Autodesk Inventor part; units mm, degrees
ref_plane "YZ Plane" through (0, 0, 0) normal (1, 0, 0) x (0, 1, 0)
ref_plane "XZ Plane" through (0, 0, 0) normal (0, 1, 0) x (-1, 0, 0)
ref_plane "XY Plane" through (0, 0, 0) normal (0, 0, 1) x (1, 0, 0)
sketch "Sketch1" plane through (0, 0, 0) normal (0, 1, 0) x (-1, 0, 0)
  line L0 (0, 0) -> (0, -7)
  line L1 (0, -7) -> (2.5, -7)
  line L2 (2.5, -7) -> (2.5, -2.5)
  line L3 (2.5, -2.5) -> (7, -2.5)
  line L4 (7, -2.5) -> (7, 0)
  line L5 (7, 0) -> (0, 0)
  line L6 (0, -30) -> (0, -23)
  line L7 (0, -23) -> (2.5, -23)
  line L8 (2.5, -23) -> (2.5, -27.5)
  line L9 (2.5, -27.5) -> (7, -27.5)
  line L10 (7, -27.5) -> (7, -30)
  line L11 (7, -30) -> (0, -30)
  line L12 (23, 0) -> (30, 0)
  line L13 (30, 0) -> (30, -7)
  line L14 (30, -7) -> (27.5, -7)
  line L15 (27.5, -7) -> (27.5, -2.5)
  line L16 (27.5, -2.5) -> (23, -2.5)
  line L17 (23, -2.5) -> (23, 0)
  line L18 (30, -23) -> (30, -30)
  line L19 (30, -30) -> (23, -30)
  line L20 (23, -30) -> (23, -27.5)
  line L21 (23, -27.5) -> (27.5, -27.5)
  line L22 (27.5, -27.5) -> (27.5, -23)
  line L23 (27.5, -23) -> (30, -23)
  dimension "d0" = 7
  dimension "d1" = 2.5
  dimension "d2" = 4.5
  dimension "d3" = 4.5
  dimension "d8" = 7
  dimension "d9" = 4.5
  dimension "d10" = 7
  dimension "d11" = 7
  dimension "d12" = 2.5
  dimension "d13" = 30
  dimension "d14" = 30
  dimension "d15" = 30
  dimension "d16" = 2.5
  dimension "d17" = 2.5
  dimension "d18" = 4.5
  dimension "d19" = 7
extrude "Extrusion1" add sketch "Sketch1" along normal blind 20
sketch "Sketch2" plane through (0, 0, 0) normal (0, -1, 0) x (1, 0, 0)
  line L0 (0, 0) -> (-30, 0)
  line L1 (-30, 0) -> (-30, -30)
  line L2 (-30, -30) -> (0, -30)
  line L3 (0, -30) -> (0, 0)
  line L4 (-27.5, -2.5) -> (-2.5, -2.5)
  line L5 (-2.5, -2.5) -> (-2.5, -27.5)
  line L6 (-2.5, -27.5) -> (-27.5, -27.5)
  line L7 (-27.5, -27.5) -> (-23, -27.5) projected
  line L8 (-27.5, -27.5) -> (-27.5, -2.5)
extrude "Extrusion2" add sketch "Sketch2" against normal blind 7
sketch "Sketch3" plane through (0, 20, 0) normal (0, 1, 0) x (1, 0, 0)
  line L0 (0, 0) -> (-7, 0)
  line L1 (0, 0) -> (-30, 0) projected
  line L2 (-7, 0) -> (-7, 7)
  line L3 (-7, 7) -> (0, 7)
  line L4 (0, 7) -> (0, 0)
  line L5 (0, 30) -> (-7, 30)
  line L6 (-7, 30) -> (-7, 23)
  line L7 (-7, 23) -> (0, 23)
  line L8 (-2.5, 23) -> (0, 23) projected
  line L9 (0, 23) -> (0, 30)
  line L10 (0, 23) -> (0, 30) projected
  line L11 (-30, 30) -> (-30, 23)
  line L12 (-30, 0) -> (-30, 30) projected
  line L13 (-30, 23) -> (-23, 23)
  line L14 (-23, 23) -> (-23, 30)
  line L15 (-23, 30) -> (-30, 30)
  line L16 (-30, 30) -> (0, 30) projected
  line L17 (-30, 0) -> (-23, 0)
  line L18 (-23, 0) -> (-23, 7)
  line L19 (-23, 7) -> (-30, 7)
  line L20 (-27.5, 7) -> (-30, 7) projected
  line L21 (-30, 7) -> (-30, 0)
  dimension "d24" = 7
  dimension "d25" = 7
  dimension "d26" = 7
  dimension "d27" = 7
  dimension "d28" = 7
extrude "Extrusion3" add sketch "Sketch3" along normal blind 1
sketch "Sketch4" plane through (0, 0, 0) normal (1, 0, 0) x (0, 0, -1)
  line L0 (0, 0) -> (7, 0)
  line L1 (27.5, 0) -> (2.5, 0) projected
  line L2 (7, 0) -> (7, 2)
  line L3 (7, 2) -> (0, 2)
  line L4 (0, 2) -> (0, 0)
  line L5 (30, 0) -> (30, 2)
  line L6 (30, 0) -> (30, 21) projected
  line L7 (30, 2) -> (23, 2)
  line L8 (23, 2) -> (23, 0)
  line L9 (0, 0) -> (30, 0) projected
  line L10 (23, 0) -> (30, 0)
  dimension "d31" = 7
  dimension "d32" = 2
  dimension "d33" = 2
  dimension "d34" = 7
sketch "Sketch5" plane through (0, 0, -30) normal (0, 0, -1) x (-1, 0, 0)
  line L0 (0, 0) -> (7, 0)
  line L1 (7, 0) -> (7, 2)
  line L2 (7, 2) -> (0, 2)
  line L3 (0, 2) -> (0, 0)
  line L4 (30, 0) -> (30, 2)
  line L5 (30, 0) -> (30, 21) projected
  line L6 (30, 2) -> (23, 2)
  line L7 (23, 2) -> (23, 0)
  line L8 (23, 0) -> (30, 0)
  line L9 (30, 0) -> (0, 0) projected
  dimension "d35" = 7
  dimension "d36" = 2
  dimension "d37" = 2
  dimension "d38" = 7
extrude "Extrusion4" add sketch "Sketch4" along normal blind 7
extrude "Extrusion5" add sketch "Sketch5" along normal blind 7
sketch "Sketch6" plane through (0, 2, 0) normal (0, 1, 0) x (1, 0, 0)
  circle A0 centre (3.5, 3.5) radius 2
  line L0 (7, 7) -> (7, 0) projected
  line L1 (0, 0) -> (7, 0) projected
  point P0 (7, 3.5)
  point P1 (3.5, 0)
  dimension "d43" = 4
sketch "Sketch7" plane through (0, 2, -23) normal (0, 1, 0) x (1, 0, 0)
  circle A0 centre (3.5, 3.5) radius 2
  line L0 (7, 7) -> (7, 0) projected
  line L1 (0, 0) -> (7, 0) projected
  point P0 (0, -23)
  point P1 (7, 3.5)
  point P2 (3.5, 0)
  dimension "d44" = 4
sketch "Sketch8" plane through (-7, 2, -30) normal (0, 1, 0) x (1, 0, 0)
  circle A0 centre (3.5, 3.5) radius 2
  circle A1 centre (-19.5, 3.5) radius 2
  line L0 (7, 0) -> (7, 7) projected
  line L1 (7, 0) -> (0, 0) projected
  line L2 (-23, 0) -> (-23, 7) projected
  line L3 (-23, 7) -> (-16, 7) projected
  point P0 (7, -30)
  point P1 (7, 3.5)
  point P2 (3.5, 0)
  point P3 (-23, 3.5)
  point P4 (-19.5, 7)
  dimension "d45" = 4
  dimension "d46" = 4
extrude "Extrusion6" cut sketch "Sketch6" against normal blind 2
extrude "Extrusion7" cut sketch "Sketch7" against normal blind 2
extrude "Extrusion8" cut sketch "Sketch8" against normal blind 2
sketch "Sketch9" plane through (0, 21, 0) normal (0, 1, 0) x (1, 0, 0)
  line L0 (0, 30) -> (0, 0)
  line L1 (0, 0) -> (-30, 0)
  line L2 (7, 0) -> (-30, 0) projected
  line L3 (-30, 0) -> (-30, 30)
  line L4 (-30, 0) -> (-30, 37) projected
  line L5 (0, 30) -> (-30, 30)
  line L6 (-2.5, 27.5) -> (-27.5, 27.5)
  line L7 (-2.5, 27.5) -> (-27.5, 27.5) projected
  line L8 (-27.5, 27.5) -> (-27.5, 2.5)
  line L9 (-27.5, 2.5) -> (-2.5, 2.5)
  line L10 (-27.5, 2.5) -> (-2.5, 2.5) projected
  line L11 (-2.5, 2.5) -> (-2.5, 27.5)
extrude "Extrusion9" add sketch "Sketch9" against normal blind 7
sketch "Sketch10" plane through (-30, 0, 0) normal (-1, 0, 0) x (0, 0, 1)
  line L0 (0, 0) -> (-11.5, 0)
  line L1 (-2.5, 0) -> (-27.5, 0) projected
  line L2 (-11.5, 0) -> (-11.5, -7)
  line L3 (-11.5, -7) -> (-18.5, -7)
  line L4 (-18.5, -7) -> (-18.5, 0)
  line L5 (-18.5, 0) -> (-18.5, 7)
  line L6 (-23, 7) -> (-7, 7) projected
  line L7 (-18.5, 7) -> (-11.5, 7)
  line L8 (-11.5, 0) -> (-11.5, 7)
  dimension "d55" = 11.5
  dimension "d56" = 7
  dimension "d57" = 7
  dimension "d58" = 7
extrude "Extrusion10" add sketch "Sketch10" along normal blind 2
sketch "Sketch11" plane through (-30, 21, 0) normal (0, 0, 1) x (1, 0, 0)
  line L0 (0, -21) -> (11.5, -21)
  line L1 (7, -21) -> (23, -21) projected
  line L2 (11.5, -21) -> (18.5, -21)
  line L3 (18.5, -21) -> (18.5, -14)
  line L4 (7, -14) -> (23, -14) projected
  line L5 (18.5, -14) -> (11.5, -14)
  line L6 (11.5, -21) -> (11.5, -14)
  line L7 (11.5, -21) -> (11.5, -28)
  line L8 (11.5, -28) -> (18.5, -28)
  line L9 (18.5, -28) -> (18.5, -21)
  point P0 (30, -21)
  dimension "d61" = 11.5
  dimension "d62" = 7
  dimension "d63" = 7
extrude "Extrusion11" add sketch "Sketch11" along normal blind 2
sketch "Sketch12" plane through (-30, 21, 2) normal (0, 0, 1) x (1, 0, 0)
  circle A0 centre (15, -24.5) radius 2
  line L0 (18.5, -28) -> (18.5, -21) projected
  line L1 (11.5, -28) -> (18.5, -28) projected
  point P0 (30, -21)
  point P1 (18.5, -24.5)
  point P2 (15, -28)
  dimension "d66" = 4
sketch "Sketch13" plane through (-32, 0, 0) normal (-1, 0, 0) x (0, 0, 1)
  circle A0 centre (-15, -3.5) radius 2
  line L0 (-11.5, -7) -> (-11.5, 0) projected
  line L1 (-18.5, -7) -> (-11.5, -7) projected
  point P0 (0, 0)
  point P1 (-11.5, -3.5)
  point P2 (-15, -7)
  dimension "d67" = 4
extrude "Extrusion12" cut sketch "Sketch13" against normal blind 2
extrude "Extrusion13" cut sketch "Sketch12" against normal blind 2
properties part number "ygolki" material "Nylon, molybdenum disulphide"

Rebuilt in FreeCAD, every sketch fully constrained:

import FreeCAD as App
import Part
import Sketcher
from FreeCAD import Vector


def add_polygon(sketch, points):
    """Adds a closed chain of lines whose ends are joined by coincident constraints."""
    first, n = sketch.GeometryCount, len(points)
    for a, b in zip(points, points[1:] + points[:1]):
        sketch.addGeometry(Part.LineSegment(App.Vector(*a, 0), App.Vector(*b, 0)), False)
    for i in range(n):
        sketch.addConstraint(Sketcher.Constraint("Coincident", first + i, 2, first + (i + 1) % n, 1))

doc = App.newDocument("Part")
params = doc.addObject("Spreadsheet::Sheet", "Params")
for row, (alias, value) in enumerate([
    ("sketch1_width", "7 mm"),
    ("sketch1_width2", "2.5 mm"),
    ("pad1_length", "20 mm"),
    ("sketch2_width", "30 mm"),
    ("sketch2_width2", "25 mm"),
    ("pad2_length", "7 mm"),
    ("sketch3_width", "7 mm"),
    ("pad3_length", "1 mm"),
    ("sketch4_width", "2 mm"),
    ("sketch4_height", "7 mm"),
    ("pad4_length", "7 mm"),
    ("sketch5_width", "7 mm"),
    ("sketch5_height", "2 mm"),
    ("pad5_length", "7 mm"),
    ("sketch6_diameter", "4 mm"),
    ("pocket1_length", "2 mm"),
    ("sketch7_diameter", "4 mm"),
    ("pocket2_length", "2 mm"),
    ("sketch8_diameter", "4 mm"),
    ("pocket3_length", "2 mm"),
    ("sketch9_width", "30 mm"),
    ("sketch9_width2", "25 mm"),
    ("pad6_length", "7 mm"),
    ("sketch10_height", "7 mm"),
    ("pad7_length", "2 mm"),
    ("sketch11_width", "7 mm"),
    ("pad8_length", "2 mm"),
    ("sketch12_diameter", "4 mm"),
    ("pocket4_length", "2 mm"),
    ("sketch13_diameter", "4 mm"),
    ("pocket5_length", "2 mm"),
], start=1):
    params.set(f"A{row}", alias)
    params.set(f"B{row}", "=" + value)
    params.setAlias(f"B{row}", alias)

body = doc.addObject("PartDesign::Body", "Body")
body.AllowCompound = True

# Sketch on XZ plane
sketch1 = body.newObject("Sketcher::SketchObject", "Sketch")
sketch1.AttachmentSupport = (doc.getObject("XZ_Plane"), [""])
sketch1.MapMode = "FlatFace"
add_polygon(sketch1, [(-7, 0), (0, 0), (0, -7), (-2.5, -7), (-2.5, -2.5), (-7, -2.5)])  # lines 0-5
add_polygon(sketch1, [(0, -23), (0, -30), (-7, -30), (-7, -27.5), (-2.5, -27.5), (-2.5, -23)])  # lines 6-11
add_polygon(sketch1, [(-30, 0), (-23, 0), (-23, -2.5), (-27.5, -2.5), (-27.5, -7), (-30, -7)])  # lines 12-17
add_polygon(sketch1, [(-30, -30), (-30, -23), (-27.5, -23), (-27.5, -27.5), (-23, -27.5), (-23, -30)])  # lines 18-23
sketch1.addConstraint(Sketcher.Constraint("Horizontal", 0))
sketch1.addConstraint(Sketcher.Constraint("Vertical", 1))
sketch1.addConstraint(Sketcher.Constraint("Horizontal", 2))
sketch1.addConstraint(Sketcher.Constraint("Vertical", 3))
sketch1.addConstraint(Sketcher.Constraint("Horizontal", 4))
sketch1.addConstraint(Sketcher.Constraint("Vertical", 5))
sketch1.addConstraint(Sketcher.Constraint("Vertical", 6))
sketch1.addConstraint(Sketcher.Constraint("Horizontal", 7))
sketch1.addConstraint(Sketcher.Constraint("Vertical", 8))
sketch1.addConstraint(Sketcher.Constraint("Horizontal", 9))
sketch1.addConstraint(Sketcher.Constraint("Vertical", 10))
sketch1.addConstraint(Sketcher.Constraint("Horizontal", 11))
sketch1.addConstraint(Sketcher.Constraint("Horizontal", 12))
sketch1.addConstraint(Sketcher.Constraint("Vertical", 13))
sketch1.addConstraint(Sketcher.Constraint("Horizontal", 14))
sketch1.addConstraint(Sketcher.Constraint("Vertical", 15))
sketch1.addConstraint(Sketcher.Constraint("Horizontal", 16))
sketch1.addConstraint(Sketcher.Constraint("Vertical", 17))
sketch1.addConstraint(Sketcher.Constraint("Vertical", 18))
sketch1.addConstraint(Sketcher.Constraint("Horizontal", 19))
sketch1.addConstraint(Sketcher.Constraint("Vertical", 20))
sketch1.addConstraint(Sketcher.Constraint("Horizontal", 21))
sketch1.addConstraint(Sketcher.Constraint("Vertical", 22))
sketch1.addConstraint(Sketcher.Constraint("Horizontal", 23))
sketch1.addConstraint(Sketcher.Constraint("Coincident", 0, 2, -1, 1))
sketch1.addConstraint(Sketcher.Constraint("PointOnObject", 6, 2, -2))
sketch1.addConstraint(Sketcher.Constraint("PointOnObject", 12, 2, -1))
sketch1.addConstraint(Sketcher.Constraint("Horizontal", 4, 2, 13, 2))
sketch1.addConstraint(Sketcher.Constraint("Horizontal", 2, 2, 15, 2))
sketch1.addConstraint(Sketcher.Constraint("Horizontal", 11, 2, 18, 2))
sketch1.addConstraint(Sketcher.Constraint("Horizontal", 9, 2, 20, 2))
sketch1.addConstraint(Sketcher.Constraint("Horizontal", 7, 2, 22, 2))
sketch1.addConstraint(Sketcher.Constraint("Vertical", 5, 2, 7, 2))
sketch1.addConstraint(Sketcher.Constraint("Vertical", 3, 2, 9, 2))
sketch1.addConstraint(Sketcher.Constraint("Vertical", 17, 2, 18, 2))
sketch1.addConstraint(Sketcher.Constraint("Vertical", 15, 2, 19, 2))
sketch1.addConstraint(Sketcher.Constraint("Vertical", 13, 2, 21, 2))
sketch1.addConstraint(Sketcher.Constraint("Equal", 7, 12))
sketch1.addConstraint(Sketcher.Constraint("Equal", 9, 14))
sketch1.addConstraint(Sketcher.Constraint("Equal", 23, 1))
sketch1.addConstraint(Sketcher.Constraint("Equal", 21, 3))
sketch1.addConstraint(Sketcher.Constraint("Equal", 1, 6))
sketch1.addConstraint(Sketcher.Constraint("Equal", 5, 8))
sketch1.addConstraint(Sketcher.Constraint("DistanceX", 0, 1, 0, 2, 7.0))
sketch1.addConstraint(Sketcher.Constraint("DistanceX", 2, 2, 2, 1, 2.5))
sketch1.addConstraint(Sketcher.Constraint("DistanceY", 6, 2, -1, 1, 30.0))
sketch1.addConstraint(Sketcher.Constraint("DistanceX", 16, 2, -1, 1, 30.0))
sketch1.setExpression("Constraints[67]", "Params.sketch1_width")
sketch1.setExpression("Constraints[68]", "Params.sketch1_width2")
pad1 = body.newObject("PartDesign::Pad", "Pad")
pad1.Profile = sketch1
pad1.setExpression("Length", "Params.pad1_length")
pad1.Reversed = True

# Sketch on XZ plane
sketch2 = body.newObject("Sketcher::SketchObject", "Sketch001")
sketch2.AttachmentSupport = (doc.getObject("XZ_Plane"), [""])
sketch2.MapMode = "FlatFace"
add_polygon(sketch2, [(0, -30), (0, 0), (-30, 0), (-30, -30)])  # lines 0-3
add_polygon(sketch2, [(-28, -28), (-28, -2), (-2, -2), (-2, -28)])  # lines 4-7
sketch2.addConstraint(Sketcher.Constraint("Vertical", 0))
sketch2.addConstraint(Sketcher.Constraint("Horizontal", 1))
sketch2.addConstraint(Sketcher.Constraint("Vertical", 2))
sketch2.addConstraint(Sketcher.Constraint("Horizontal", 3))
sketch2.addConstraint(Sketcher.Constraint("Vertical", 4))
sketch2.addConstraint(Sketcher.Constraint("Horizontal", 5))
sketch2.addConstraint(Sketcher.Constraint("Vertical", 6))
sketch2.addConstraint(Sketcher.Constraint("Horizontal", 7))
sketch2.addConstraint(Sketcher.Constraint("Coincident", 0, 2, -1, 1))
sketch2.addConstraint(Sketcher.Constraint("Equal", 3, 0))
sketch2.addConstraint(Sketcher.Constraint("Equal", 7, 4))
sketch2.addConstraint(Sketcher.Constraint("DistanceX", 1, 2, 1, 1, 30.0))
sketch2.addConstraint(Sketcher.Constraint("DistanceX", 5, 1, 5, 2, 25.0))
sketch2.addConstraint(Sketcher.Constraint("DistanceX", 4, 2, -1, 1, 27.5))
sketch2.addConstraint(Sketcher.Constraint("DistanceY", 4, 2, -1, 1, 2.5))
sketch2.setExpression("Constraints[19]", "Params.sketch2_width")
sketch2.setExpression("Constraints[20]", "Params.sketch2_width2")
pad2 = body.newObject("PartDesign::Pad", "Pad001")
pad2.Profile = sketch2
pad2.setExpression("Length", "Params.pad2_length")
pad2.Reversed = True

# Sketch on XZ plane
sketch3 = body.newObject("Sketcher::SketchObject", "Sketch002")
sketch3.AttachmentSupport = (doc.getObject("XZ_Plane"), [""])
sketch3.MapMode = "FlatFace"
sketch3.AttachmentOffset = App.Placement(Vector(0, 0, -20), App.Rotation())
add_polygon(sketch3, [(0, -30), (-7, -30), (-7, -23), (0, -23)])  # lines 0-3
add_polygon(sketch3, [(-30, -30), (-30, -23), (-23, -23), (-23, -30)])  # lines 4-7
add_polygon(sketch3, [(-30, 0), (-23, 0), (-23, -7), (-30, -7)])  # lines 8-11
add_polygon(sketch3, [(-7, 0), (0, 0), (0, -7), (-7, -7)])  # lines 12-15
sketch3.addConstraint(Sketcher.Constraint("Horizontal", 0))
sketch3.addConstraint(Sketcher.Constraint("Vertical", 1))
sketch3.addConstraint(Sketcher.Constraint("Horizontal", 2))
sketch3.addConstraint(Sketcher.Constraint("Vertical", 3))
sketch3.addConstraint(Sketcher.Constraint("Vertical", 4))
sketch3.addConstraint(Sketcher.Constraint("Horizontal", 5))
sketch3.addConstraint(Sketcher.Constraint("Vertical", 6))
sketch3.addConstraint(Sketcher.Constraint("Horizontal", 7))
sketch3.addConstraint(Sketcher.Constraint("Horizontal", 8))
sketch3.addConstraint(Sketcher.Constraint("Vertical", 9))
sketch3.addConstraint(Sketcher.Constraint("Horizontal", 10))
sketch3.addConstraint(Sketcher.Constraint("Vertical", 11))
sketch3.addConstraint(Sketcher.Constraint("Horizontal", 12))
sketch3.addConstraint(Sketcher.Constraint("Vertical", 13))
sketch3.addConstraint(Sketcher.Constraint("Horizontal", 14))
sketch3.addConstraint(Sketcher.Constraint("Vertical", 15))
sketch3.addConstraint(Sketcher.Constraint("Coincident", 12, 2, -1, 1))
sketch3.addConstraint(Sketcher.Constraint("PointOnObject", 2, 2, -2))
sketch3.addConstraint(Sketcher.Constraint("PointOnObject", 8, 2, -1))
sketch3.addConstraint(Sketcher.Constraint("Horizontal", 2, 2, 4, 2))
sketch3.addConstraint(Sketcher.Constraint("Horizontal", 3, 2, 6, 2))
sketch3.addConstraint(Sketcher.Constraint("Horizontal", 10, 2, 13, 2))
sketch3.addConstraint(Sketcher.Constraint("Vertical", 6, 2, 8, 2))
sketch3.addConstraint(Sketcher.Constraint("Vertical", 7, 2, 10, 2))
sketch3.addConstraint(Sketcher.Constraint("Vertical", 1, 2, 14, 2))
sketch3.addConstraint(Sketcher.Constraint("Equal", 2, 5))
sketch3.addConstraint(Sketcher.Constraint("Equal", 14, 1))
sketch3.addConstraint(Sketcher.Constraint("Equal", 6, 9))
sketch3.addConstraint(Sketcher.Constraint("DistanceX", 0, 2, 0, 1, 7.0))
sketch3.addConstraint(Sketcher.Constraint("DistanceY", 0, 2, -1, 1, 30.0))
sketch3.addConstraint(Sketcher.Constraint("DistanceX", 4, 2, -1, 1, 30.0))
sketch3.setExpression("Constraints[44]", "Params.sketch3_width")
pad3 = body.newObject("PartDesign::Pad", "Pad002")
pad3.Profile = sketch3
pad3.setExpression("Length", "Params.pad3_length")
pad3.Reversed = True

# Sketch on YZ plane
sketch4 = body.newObject("Sketcher::SketchObject", "Sketch003")
sketch4.AttachmentSupport = (doc.getObject("YZ_Plane"), [""])
sketch4.MapMode = "FlatFace"
add_polygon(sketch4, [(2, 0), (0, 0), (0, -7), (2, -7)])  # lines 0-3
add_polygon(sketch4, [(2, -23), (0, -23), (0, -30), (2, -30)])  # lines 4-7
sketch4.addConstraint(Sketcher.Constraint("Horizontal", 0))
sketch4.addConstraint(Sketcher.Constraint("Vertical", 1))
sketch4.addConstraint(Sketcher.Constraint("Horizontal", 2))
sketch4.addConstraint(Sketcher.Constraint("Vertical", 3))
sketch4.addConstraint(Sketcher.Constraint("Horizontal", 4))
sketch4.addConstraint(Sketcher.Constraint("Vertical", 5))
sketch4.addConstraint(Sketcher.Constraint("Horizontal", 6))
sketch4.addConstraint(Sketcher.Constraint("Vertical", 7))
sketch4.addConstraint(Sketcher.Constraint("Coincident", 0, 2, -1, 1))
sketch4.addConstraint(Sketcher.Constraint("PointOnObject", 4, 2, -2))
sketch4.addConstraint(Sketcher.Constraint("Vertical", 3, 2, 6, 2))
sketch4.addConstraint(Sketcher.Constraint("Equal", 3, 5))
sketch4.addConstraint(Sketcher.Constraint("DistanceX", 0, 2, 0, 1, 2.0))
sketch4.addConstraint(Sketcher.Constraint("DistanceY", 1, 2, 1, 1, 7.0))
sketch4.addConstraint(Sketcher.Constraint("DistanceY", 4, 2, -1, 1, 23.0))
sketch4.setExpression("Constraints[20]", "Params.sketch4_width")
sketch4.setExpression("Constraints[21]", "Params.sketch4_height")
pad4 = body.newObject("PartDesign::Pad", "Pad003")
pad4.Profile = sketch4
pad4.setExpression("Length", "Params.pad4_length")

# Sketch on XY plane
sketch5 = body.newObject("Sketcher::SketchObject", "Sketch004")
sketch5.AttachmentSupport = (doc.getObject("XY_Plane"), [""])
sketch5.MapMode = "FlatFace"
sketch5.AttachmentOffset = App.Placement(Vector(0, 0, -30), App.Rotation())
add_polygon(sketch5, [(0, 2), (0, 0), (-7, 0), (-7, 2)])  # lines 0-3
add_polygon(sketch5, [(-23, 2), (-23, 0), (-30, 0), (-30, 2)])  # lines 4-7
sketch5.addConstraint(Sketcher.Constraint("Vertical", 0))
sketch5.addConstraint(Sketcher.Constraint("Horizontal", 1))
sketch5.addConstraint(Sketcher.Constraint("Vertical", 2))
sketch5.addConstraint(Sketcher.Constraint("Horizontal", 3))
sketch5.addConstraint(Sketcher.Constraint("Vertical", 4))
sketch5.addConstraint(Sketcher.Constraint("Horizontal", 5))
sketch5.addConstraint(Sketcher.Constraint("Vertical", 6))
sketch5.addConstraint(Sketcher.Constraint("Horizontal", 7))
sketch5.addConstraint(Sketcher.Constraint("Coincident", 0, 2, -1, 1))
sketch5.addConstraint(Sketcher.Constraint("PointOnObject", 4, 2, -1))
sketch5.addConstraint(Sketcher.Constraint("Horizontal", 3, 2, 6, 2))
sketch5.addConstraint(Sketcher.Constraint("Equal", 3, 5))
sketch5.addConstraint(Sketcher.Constraint("DistanceX", 1, 2, 1, 1, 7.0))
sketch5.addConstraint(Sketcher.Constraint("DistanceY", 0, 2, 0, 1, 2.0))
sketch5.addConstraint(Sketcher.Constraint("DistanceX", 4, 2, -1, 1, 23.0))
sketch5.setExpression("Constraints[20]", "Params.sketch5_width")
sketch5.setExpression("Constraints[21]", "Params.sketch5_height")
pad5 = body.newObject("PartDesign::Pad", "Pad004")
pad5.Profile = sketch5
pad5.setExpression("Length", "Params.pad5_length")
pad5.Reversed = True

# Sketch on XZ plane
sketch6 = body.newObject("Sketcher::SketchObject", "Sketch005")
sketch6.AttachmentSupport = (doc.getObject("XZ_Plane"), [""])
sketch6.MapMode = "FlatFace"
sketch6.AttachmentOffset = App.Placement(Vector(0, 0, -2), App.Rotation())
sketch6.addGeometry(Part.Circle(Vector(3.5, -3.5, 0), Vector(0, 0, 1), 2), False)
sketch6.addConstraint(Sketcher.Constraint("Diameter", 0, 4.0))
sketch6.addConstraint(Sketcher.Constraint("DistanceX", -1, 1, 0, 3, 3.5))
sketch6.addConstraint(Sketcher.Constraint("DistanceY", 0, 3, -1, 1, 3.5))
sketch6.setExpression("Constraints[0]", "Params.sketch6_diameter")
pocket1 = body.newObject("PartDesign::Pocket", "Pocket")
pocket1.Profile = sketch6
pocket1.setExpression("Length", "Params.pocket1_length")
pocket1.Reversed = True

# Sketch on XZ plane
sketch7 = body.newObject("Sketcher::SketchObject", "Sketch006")
sketch7.AttachmentSupport = (doc.getObject("XZ_Plane"), [""])
sketch7.MapMode = "FlatFace"
sketch7.AttachmentOffset = App.Placement(Vector(0, 0, -2), App.Rotation())
sketch7.addGeometry(Part.Circle(Vector(3.5, -26.5, 0), Vector(0, 0, 1), 2), False)
sketch7.addConstraint(Sketcher.Constraint("Diameter", 0, 4.0))
sketch7.addConstraint(Sketcher.Constraint("DistanceX", -1, 1, 0, 3, 3.5))
sketch7.addConstraint(Sketcher.Constraint("DistanceY", 0, 3, -1, 1, 26.5))
sketch7.setExpression("Constraints[0]", "Params.sketch7_diameter")
pocket2 = body.newObject("PartDesign::Pocket", "Pocket001")
pocket2.Profile = sketch7
pocket2.setExpression("Length", "Params.pocket2_length")
pocket2.Reversed = True

# Sketch on XZ plane
sketch8 = body.newObject("Sketcher::SketchObject", "Sketch007")
sketch8.AttachmentSupport = (doc.getObject("XZ_Plane"), [""])
sketch8.MapMode = "FlatFace"
sketch8.AttachmentOffset = App.Placement(Vector(0, 0, -2), App.Rotation())
sketch8.addGeometry(Part.Circle(Vector(-3.5, -33.5, 0), Vector(0, 0, 1), 2), False)
sketch8.addGeometry(Part.Circle(Vector(-26.5, -33.5, 0), Vector(0, 0, 1), 2), False)
sketch8.addConstraint(Sketcher.Constraint("Equal", 0, 1))
sketch8.addConstraint(Sketcher.Constraint("Horizontal", 0, 3, 1, 3))
sketch8.addConstraint(Sketcher.Constraint("Diameter", 0, 4.0))
sketch8.addConstraint(Sketcher.Constraint("DistanceX", 1, 3, 0, 3, 23.0))
sketch8.addConstraint(Sketcher.Constraint("DistanceX", 0, 3, -1, 1, 3.5))
sketch8.addConstraint(Sketcher.Constraint("DistanceY", 0, 3, -1, 1, 33.5))
sketch8.setExpression("Constraints[2]", "Params.sketch8_diameter")
pocket3 = body.newObject("PartDesign::Pocket", "Pocket002")
pocket3.Profile = sketch8
pocket3.setExpression("Length", "Params.pocket3_length")
pocket3.Reversed = True

# Sketch on XZ plane
sketch9 = body.newObject("Sketcher::SketchObject", "Sketch008")
sketch9.AttachmentSupport = (doc.getObject("XZ_Plane"), [""])
sketch9.MapMode = "FlatFace"
sketch9.AttachmentOffset = App.Placement(Vector(0, 0, -21), App.Rotation())
add_polygon(sketch9, [(0, 0), (0, -30), (-30, -30), (-30, 0)])  # lines 0-3
add_polygon(sketch9, [(-28, -28), (-2, -28), (-2, -2), (-28, -2)])  # lines 4-7
sketch9.addConstraint(Sketcher.Constraint("Vertical", 0))
sketch9.addConstraint(Sketcher.Constraint("Horizontal", 1))
sketch9.addConstraint(Sketcher.Constraint("Vertical", 2))
sketch9.addConstraint(Sketcher.Constraint("Horizontal", 3))
sketch9.addConstraint(Sketcher.Constraint("Horizontal", 4))
sketch9.addConstraint(Sketcher.Constraint("Vertical", 5))
sketch9.addConstraint(Sketcher.Constraint("Horizontal", 6))
sketch9.addConstraint(Sketcher.Constraint("Vertical", 7))
sketch9.addConstraint(Sketcher.Constraint("Coincident", 3, 2, -1, 1))
sketch9.addConstraint(Sketcher.Constraint("Equal", 3, 0))
sketch9.addConstraint(Sketcher.Constraint("Equal", 6, 5))
sketch9.addConstraint(Sketcher.Constraint("DistanceX", 1, 2, 1, 1, 30.0))
sketch9.addConstraint(Sketcher.Constraint("DistanceX", 4, 1, 4, 2, 25.0))
sketch9.addConstraint(Sketcher.Constraint("DistanceX", 4, 2, -1, 1, 2.5))
sketch9.addConstraint(Sketcher.Constraint("DistanceY", 4, 2, -1, 1, 27.5))
sketch9.setExpression("Constraints[19]", "Params.sketch9_width")
sketch9.setExpression("Constraints[20]", "Params.sketch9_width2")
pad6 = body.newObject("PartDesign::Pad", "Pad005")
pad6.Profile = sketch9
pad6.setExpression("Length", "Params.pad6_length")

# Sketch on YZ plane
sketch10 = body.newObject("Sketcher::SketchObject", "Sketch009")
sketch10.AttachmentSupport = (doc.getObject("YZ_Plane"), [""])
sketch10.MapMode = "FlatFace"
sketch10.AttachmentOffset = App.Placement(Vector(0, 0, -30), App.Rotation())
add_polygon(sketch10, [(-7, -12), (7, -12), (7, -18), (-7, -18)])  # lines 0-3
sketch10.addConstraint(Sketcher.Constraint("Horizontal", 0))
sketch10.addConstraint(Sketcher.Constraint("Vertical", 1))
sketch10.addConstraint(Sketcher.Constraint("Horizontal", 2))
sketch10.addConstraint(Sketcher.Constraint("Vertical", 3))
sketch10.addConstraint(Sketcher.Constraint("DistanceY", 1, 2, 1, 1, 7.0))
sketch10.addConstraint(Sketcher.Constraint("DistanceX", -1, 1, 0, 2, 7.0))
sketch10.addConstraint(Sketcher.Constraint("DistanceX", 2, 2, -1, 1, 7.0))
sketch10.addConstraint(Sketcher.Constraint("DistanceY", 0, 2, -1, 1, 11.5))
sketch10.setExpression("Constraints[8]", "Params.sketch10_height")
pad7 = body.newObject("PartDesign::Pad", "Pad006")
pad7.Profile = sketch10
pad7.setExpression("Length", "Params.pad7_length")
pad7.Reversed = True

# Sketch on XY plane
sketch11 = body.newObject("Sketcher::SketchObject", "Sketch010")
sketch11.AttachmentSupport = (doc.getObject("XY_Plane"), [""])
sketch11.MapMode = "FlatFace"
add_polygon(sketch11, [(-18, 7), (-18, -7), (-12, -7), (-12, 7)])  # lines 0-3
sketch11.addConstraint(Sketcher.Constraint("Vertical", 0))
sketch11.addConstraint(Sketcher.Constraint("Horizontal", 1))
sketch11.addConstraint(Sketcher.Constraint("Vertical", 2))
sketch11.addConstraint(Sketcher.Constraint("Horizontal", 3))
sketch11.addConstraint(Sketcher.Constraint("DistanceX", 1, 1, 1, 2, 7.0))
sketch11.addConstraint(Sketcher.Constraint("DistanceY", 0, 2, -1, 1, 7.0))
sketch11.addConstraint(Sketcher.Constraint("DistanceY", -1, 1, 2, 2, 7.0))
sketch11.addConstraint(Sketcher.Constraint("DistanceX", 1, 2, -1, 1, 11.5))
sketch11.setExpression("Constraints[8]", "Params.sketch11_width")
pad8 = body.newObject("PartDesign::Pad", "Pad007")
pad8.Profile = sketch11
pad8.setExpression("Length", "Params.pad8_length")

# Sketch on YZ plane
sketch12 = body.newObject("Sketcher::SketchObject", "Sketch011")
sketch12.AttachmentSupport = (doc.getObject("YZ_Plane"), [""])
sketch12.MapMode = "FlatFace"
sketch12.AttachmentOffset = App.Placement(Vector(0, 0, -32), App.Rotation())
sketch12.addGeometry(Part.Circle(Vector(-3.5, -15, 0), Vector(0, 0, 1), 2), False)
sketch12.addConstraint(Sketcher.Constraint("Diameter", 0, 4.0))
sketch12.addConstraint(Sketcher.Constraint("DistanceY", 0, 3, -1, 1, 15.0))
sketch12.addConstraint(Sketcher.Constraint("DistanceX", 0, 3, -1, 1, 3.5))
sketch12.setExpression("Constraints[0]", "Params.sketch12_diameter")
pocket4 = body.newObject("PartDesign::Pocket", "Pocket003")
pocket4.Profile = sketch12
pocket4.setExpression("Length", "Params.pocket4_length")
pocket4.Reversed = True

# Sketch on XY plane
sketch13 = body.newObject("Sketcher::SketchObject", "Sketch012")
sketch13.AttachmentSupport = (doc.getObject("XY_Plane"), [""])
sketch13.MapMode = "FlatFace"
sketch13.AttachmentOffset = App.Placement(Vector(0, 0, 2), App.Rotation())
sketch13.addGeometry(Part.Circle(Vector(-15, -3.5, 0), Vector(0, 0, 1), 2), False)
sketch13.addConstraint(Sketcher.Constraint("Diameter", 0, 4.0))
sketch13.addConstraint(Sketcher.Constraint("DistanceX", 0, 3, -1, 1, 15.0))
sketch13.addConstraint(Sketcher.Constraint("DistanceY", 0, 3, -1, 1, 3.5))
sketch13.setExpression("Constraints[0]", "Params.sketch13_diameter")
pocket5 = body.newObject("PartDesign::Pocket", "Pocket004")
pocket5.Profile = sketch13
pocket5.setExpression("Length", "Params.pocket5_length")

doc.recompute()
